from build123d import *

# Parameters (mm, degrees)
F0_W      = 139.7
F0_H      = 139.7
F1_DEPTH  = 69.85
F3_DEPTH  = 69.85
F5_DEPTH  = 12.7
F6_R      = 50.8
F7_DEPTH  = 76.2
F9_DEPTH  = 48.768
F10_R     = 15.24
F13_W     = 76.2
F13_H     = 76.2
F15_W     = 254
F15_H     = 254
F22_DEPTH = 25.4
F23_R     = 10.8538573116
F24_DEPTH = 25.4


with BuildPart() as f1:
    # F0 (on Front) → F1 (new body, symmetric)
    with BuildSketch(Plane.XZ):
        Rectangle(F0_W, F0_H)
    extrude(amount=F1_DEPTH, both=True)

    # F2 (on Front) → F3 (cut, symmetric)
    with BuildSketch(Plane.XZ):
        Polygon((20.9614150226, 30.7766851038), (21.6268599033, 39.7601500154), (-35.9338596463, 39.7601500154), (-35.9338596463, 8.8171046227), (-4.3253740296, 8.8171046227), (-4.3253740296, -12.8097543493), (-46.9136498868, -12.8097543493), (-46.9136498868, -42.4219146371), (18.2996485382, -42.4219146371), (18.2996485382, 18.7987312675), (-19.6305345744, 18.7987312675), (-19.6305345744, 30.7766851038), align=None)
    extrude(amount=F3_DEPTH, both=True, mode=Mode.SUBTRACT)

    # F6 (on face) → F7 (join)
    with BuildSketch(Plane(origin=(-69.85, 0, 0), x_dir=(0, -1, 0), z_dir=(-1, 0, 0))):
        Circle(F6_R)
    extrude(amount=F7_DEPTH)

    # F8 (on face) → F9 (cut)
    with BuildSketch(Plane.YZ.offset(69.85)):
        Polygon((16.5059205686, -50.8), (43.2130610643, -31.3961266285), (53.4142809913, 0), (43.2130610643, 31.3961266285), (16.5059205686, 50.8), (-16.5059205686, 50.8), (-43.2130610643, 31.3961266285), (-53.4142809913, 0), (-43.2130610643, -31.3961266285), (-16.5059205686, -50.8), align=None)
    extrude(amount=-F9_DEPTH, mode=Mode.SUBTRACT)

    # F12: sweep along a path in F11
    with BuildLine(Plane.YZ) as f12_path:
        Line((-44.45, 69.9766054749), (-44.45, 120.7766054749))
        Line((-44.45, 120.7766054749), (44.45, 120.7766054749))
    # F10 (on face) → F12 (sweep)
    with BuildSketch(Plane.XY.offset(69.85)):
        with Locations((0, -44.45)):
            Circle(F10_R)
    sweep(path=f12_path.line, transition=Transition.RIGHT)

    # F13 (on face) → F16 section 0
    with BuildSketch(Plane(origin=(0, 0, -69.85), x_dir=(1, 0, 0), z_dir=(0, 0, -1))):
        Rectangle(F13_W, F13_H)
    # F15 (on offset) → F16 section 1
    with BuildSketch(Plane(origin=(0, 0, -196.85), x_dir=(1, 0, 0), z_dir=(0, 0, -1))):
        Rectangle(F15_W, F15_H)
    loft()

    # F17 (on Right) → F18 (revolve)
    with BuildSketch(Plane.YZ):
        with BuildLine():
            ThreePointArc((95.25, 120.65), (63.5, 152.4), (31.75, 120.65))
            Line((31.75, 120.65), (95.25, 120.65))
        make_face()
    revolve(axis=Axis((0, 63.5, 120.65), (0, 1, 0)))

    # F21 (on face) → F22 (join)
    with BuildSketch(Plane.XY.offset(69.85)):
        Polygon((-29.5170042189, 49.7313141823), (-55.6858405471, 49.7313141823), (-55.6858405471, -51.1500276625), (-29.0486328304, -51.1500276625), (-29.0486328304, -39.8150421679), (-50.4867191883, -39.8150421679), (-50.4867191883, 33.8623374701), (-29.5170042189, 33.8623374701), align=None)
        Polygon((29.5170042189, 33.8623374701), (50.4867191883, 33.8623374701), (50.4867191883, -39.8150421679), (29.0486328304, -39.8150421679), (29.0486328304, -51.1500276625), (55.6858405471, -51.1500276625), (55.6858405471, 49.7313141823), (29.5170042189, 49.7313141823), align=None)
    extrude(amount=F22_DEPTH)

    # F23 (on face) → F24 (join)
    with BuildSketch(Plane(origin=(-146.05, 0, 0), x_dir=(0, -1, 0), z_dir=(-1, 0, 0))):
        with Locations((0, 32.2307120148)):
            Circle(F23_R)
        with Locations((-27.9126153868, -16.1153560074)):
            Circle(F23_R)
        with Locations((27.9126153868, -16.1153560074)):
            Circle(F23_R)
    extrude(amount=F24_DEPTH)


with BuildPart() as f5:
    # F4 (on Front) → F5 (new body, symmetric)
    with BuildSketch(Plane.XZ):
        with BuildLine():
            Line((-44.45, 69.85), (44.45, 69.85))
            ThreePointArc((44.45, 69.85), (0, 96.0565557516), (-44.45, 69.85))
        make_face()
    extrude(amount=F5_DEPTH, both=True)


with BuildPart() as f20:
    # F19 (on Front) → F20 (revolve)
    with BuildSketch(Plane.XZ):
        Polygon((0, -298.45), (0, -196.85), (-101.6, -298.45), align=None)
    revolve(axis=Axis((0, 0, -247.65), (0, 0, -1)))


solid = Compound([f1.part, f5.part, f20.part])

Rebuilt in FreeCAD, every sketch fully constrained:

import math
import FreeCAD as App
import Part
import Sketcher
Q = App.Units.Quantity


def add_polygon(sketch, points):
    """Adds a closed chain of lines whose ends are joined by coincident constraints."""
    first, n = sketch.GeometryCount, len(points)
    for a, b in zip(points, points[1:] + points[:1]):
        sketch.addGeometry(Part.LineSegment(App.Vector(*a, 0), App.Vector(*b, 0)), False)
    for i in range(n):
        sketch.addConstraint(Sketcher.Constraint("Coincident", first + i, 2, first + (i + 1) % n, 1))

doc = App.newDocument("Part")
body = doc.addObject("PartDesign::Body", "Body")

# Sketch on XZ plane
sketch1 = doc.addObject("Sketcher::SketchObject", "Sketch")
body.addObject(sketch1)
sketch1.AttachmentSupport = (doc.XZ_Plane, [""])
sketch1.MapMode = "FlatFace"
add_polygon(sketch1, [(-69.85, 69.85), (-69.85, -69.85), (69.85, -69.85), (69.85, 69.85)])  # lines 0-3
sketch1.addConstraint([
    Sketcher.Constraint("Vertical", 0),
    Sketcher.Constraint("Horizontal", 1),
    Sketcher.Constraint("Vertical", 2),
    Sketcher.Constraint("Horizontal", 3),
    Sketcher.Constraint("Symmetric", 0, 2, 2, 2, -1, 1),
    Sketcher.Constraint("Equal", 3, 0),
    Sketcher.Constraint("DistanceX", 1, 1, 1, 2, Q("5.5 in")),
])
pad1 = doc.addObject("PartDesign::Pad", "Pad")
body.addObject(pad1)
pad1.Profile = sketch1
pad1.Length = Q("5.5 in")
pad1.Midplane = True

# Sketch on XZ plane
sketch2 = doc.addObject("Sketcher::SketchObject", "Sketch001")
body.addObject(sketch2)
sketch2.AttachmentSupport = (doc.XZ_Plane, [""])
sketch2.MapMode = "FlatFace"
add_polygon(sketch2, [(20.961415, 30.776685), (21.62686, 39.76015), (-35.93386, 39.76015), (-35.93386, 8.817105), (-4.325374, 8.817105), (-4.325374, -12.809754), (-46.91365, -12.809754), (-46.91365, -42.421915), (18.299649, -42.421915), (18.299649, 18.798731), (-19.630535, 18.798731), (-19.630535, 30.776685)])  # lines 0-11
sketch2.addConstraint([
    Sketcher.Constraint("Horizontal", 1),
    Sketcher.Constraint("Vertical", 2),
    Sketcher.Constraint("Horizontal", 3),
    Sketcher.Constraint("Vertical", 4),
    Sketcher.Constraint("Horizontal", 5),
    Sketcher.Constraint("Vertical", 6),
    Sketcher.Constraint("Horizontal", 7),
    Sketcher.Constraint("Vertical", 8),
    Sketcher.Constraint("Horizontal", 9),
    Sketcher.Constraint("Vertical", 10),
    Sketcher.Constraint("Horizontal", 11),
    Sketcher.Constraint("DistanceX", 7, 1, 7, 2, 65.213298),
    Sketcher.Constraint("DistanceX", 1, 2, 1, 1, 57.56072),
    Sketcher.Constraint("DistanceX", 11, 1, 11, 2, 40.59195),
    Sketcher.Constraint("DistanceY", 4, 2, 4, 1, 21.626859),
    Sketcher.Constraint("DistanceY", 6, 2, 6, 1, 29.61216),
    Sketcher.Constraint("DistanceX", 3, 1, 3, 2, 31.608486),
    Sketcher.Constraint("DistanceX", 5, 2, 5, 1, 42.588276),
    Sketcher.Constraint("DistanceX", 9, 2, 9, 1, 37.930183),
    Sketcher.Constraint("DistanceY", 2, 2, 2, 1, 30.943045),
    Sketcher.Constraint("DistanceY", 8, 1, 8, 2, 61.220646),
    Sketcher.Constraint("DistanceY", 10, 1, 10, 2, 11.977954),
    Sketcher.Constraint("DistanceX", -1, 1, 0, 2, 21.62686),
    Sketcher.Constraint("DistanceY", -1, 1, 0, 2, 39.76015),
])
pocket1 = doc.addObject("PartDesign::Pocket", "Pocket")
body.addObject(pocket1)
pocket1.Profile = sketch2
pocket1.Length = Q("5.5 in")
pocket1.Midplane = True

# Sketch on YZ plane
sketch3 = doc.addObject("Sketcher::SketchObject", "Sketch002")
body.addObject(sketch3)
sketch3.AttachmentSupport = (doc.YZ_Plane, [""])
sketch3.MapMode = "FlatFace"
sketch3.AttachmentOffset = App.Placement(App.Vector(0, 0, -2.75 * 25.4), App.Rotation())
sketch3.addGeometry(Part.Circle(App.Vector(0, 0, 0), App.Vector(0, 0, 1), 50.8), False)
sketch3.addConstraint([
    Sketcher.Constraint("Coincident", 0, 3, -1, 1),
    Sketcher.Constraint("Diameter", 0, Q("4 in")),
])
pad2 = doc.addObject("PartDesign::Pad", "Pad001")
body.addObject(pad2)
pad2.Profile = sketch3
pad2.Length = Q("3 in")
pad2.Reversed = True

# Sketch on YZ plane
sketch4 = doc.addObject("Sketcher::SketchObject", "Sketch003")
body.addObject(sketch4)
sketch4.AttachmentSupport = (doc.YZ_Plane, [""])
sketch4.MapMode = "FlatFace"
sketch4.AttachmentOffset = App.Placement(App.Vector(0, 0, 2.75 * 25.4), App.Rotation())
add_polygon(sketch4, [(16.505921, -50.8), (43.213061, -31.396127), (53.414281, 0), (43.213061, 31.396127), (16.505921, 50.8), (-16.505921, 50.8), (-43.213061, 31.396127), (-53.414281, 0), (-43.213061, -31.396127), (-16.505921, -50.8)])  # lines 0-9
sketch4.addConstraint([
    Sketcher.Constraint("Horizontal", 4),
    Sketcher.Constraint("Horizontal", 9),
    Sketcher.Constraint("Symmetric", 0, 2, 5, 2, -1, 1),
    Sketcher.Constraint("Symmetric", 1, 2, 6, 2, -1, 1),
    Sketcher.Constraint("Symmetric", 2, 2, 7, 2, -1, 1),
    Sketcher.Constraint("Symmetric", 3, 2, 8, 2, -1, 1),
    Sketcher.Constraint("Symmetric", 2, 2, 5, 2, -2),
    Sketcher.Constraint("PointOnObject", 1, 2, -1),
    Sketcher.Constraint("Parallel", 0, 5),
    Sketcher.Constraint("Vertical", 4, 2, 8, 2),
    Sketcher.Constraint("Equal", 0, 1),
    Sketcher.Constraint("DistanceY", -1, 1, 3, 2, Q("2 in")),
    Sketcher.Constraint("Angle", 0, Q("36 deg")),
    Sketcher.Constraint("Angle", 1, Q("72 deg")),
    Sketcher.Constraint("DistanceX", 4, 2, 4, 1, 33.011841),
])
pocket2 = doc.addObject("PartDesign::Pocket", "Pocket001")
body.addObject(pocket2)
pocket2.Profile = sketch4
pocket2.Length = Q("1.92 in")

# Sketch on XY plane
sketch5 = doc.addObject("Sketcher::SketchObject", "Sketch004")
body.addObject(sketch5)
sketch5.AttachmentSupport = (doc.XY_Plane, [""])
sketch5.MapMode = "FlatFace"
sketch5.AttachmentOffset = App.Placement(App.Vector(0, 0, 2.75 * 25.4), App.Rotation())
sketch5.addGeometry(Part.Circle(App.Vector(0, -44.45, 0), App.Vector(0, 0, 1), 15.24), False)
sketch5.addConstraint([
    Sketcher.Constraint("PointOnObject", 0, 3, -2),
    Sketcher.Constraint("Diameter", 0, Q("1.2 in")),
    Sketcher.Constraint("DistanceY", 0, 3, -1, 1, Q("1.75 in")),
])

# Sketch on YZ plane
sketch6 = doc.addObject("Sketcher::SketchObject", "Sketch005")
body.addObject(sketch6)
sketch6.AttachmentSupport = (doc.YZ_Plane, [""])
sketch6.MapMode = "FlatFace"
sketch6.addGeometry([
    Part.LineSegment(App.Vector(-44.45, 69.976605, 0), App.Vector(-44.45, 120.776605, 0)),
    Part.LineSegment(App.Vector(-44.45, 120.776605, 0), App.Vector(44.45, 120.776605, 0)),
], False)
sketch6.addConstraint([
    Sketcher.Constraint("Coincident", 0, 2, 1, 1),
    Sketcher.Constraint("Vertical", 0),
    Sketcher.Constraint("Horizontal", 1),
    Sketcher.Constraint("DistanceY", 0, 1, 0, 2, Q("2 in")),
    Sketcher.Constraint("DistanceX", 1, 1, 1, 2, Q("3.5 in")),
    Sketcher.Constraint("DistanceX", 0, 1, -1, 1, Q("1.75 in")),
    Sketcher.Constraint("DistanceY", -1, 1, 0, 1, 69.976605),
])
doc.recompute()

additivepipe = doc.addObject("PartDesign::AdditivePipe", "AdditivePipe")
body.addObject(additivepipe)
additivepipe.Profile = sketch5
additivepipe.Spine = (sketch6, ["Edge1", "Edge2"])
additivepipe.Transition = "Right corner"

# Sketch on XY plane
sketch7 = doc.addObject("Sketcher::SketchObject", "Sketch006")
body.addObject(sketch7)
sketch7.AttachmentSupport = (doc.XY_Plane, [""])
sketch7.MapMode = "FlatFace"
sketch7.AttachmentOffset = App.Placement(App.Vector(0, 0, -2.75 * 25.4), App.Rotation())
add_polygon(sketch7, [(-38.1, -38.1), (-38.1, 38.1), (38.1, 38.1), (38.1, -38.1)])  # lines 0-3
sketch7.addConstraint([
    Sketcher.Constraint("Vertical", 0),
    Sketcher.Constraint("Horizontal", 1),
    Sketcher.Constraint("Vertical", 2),
    Sketcher.Constraint("Horizontal", 3),
    Sketcher.Constraint("Symmetric", 0, 2, 2, 2, -1, 1),
    Sketcher.Constraint("Equal", 3, 0),
    Sketcher.Constraint("DistanceX", 1, 1, 1, 2, Q("3 in")),
])

# Sketch on XY plane
sketch8 = doc.addObject("Sketcher::SketchObject", "Sketch007")
body.addObject(sketch8)
sketch8.AttachmentSupport = (doc.XY_Plane, [""])
sketch8.MapMode = "FlatFace"
sketch8.AttachmentOffset = App.Placement(App.Vector(0, 0, -7.75 * 25.4), App.Rotation())
add_polygon(sketch8, [(-127, -127), (-127, 127), (127, 127), (127, -127)])  # lines 0-3
sketch8.addConstraint([
    Sketcher.Constraint("Vertical", 0),
    Sketcher.Constraint("Horizontal", 1),
    Sketcher.Constraint("Vertical", 2),
    Sketcher.Constraint("Horizontal", 3),
    Sketcher.Constraint("Symmetric", 0, 2, 2, 2, -1, 1),
    Sketcher.Constraint("Equal", 3, 0),
    Sketcher.Constraint("DistanceX", 1, 1, 1, 2, Q("10 in")),
])

additiveloft = doc.addObject("PartDesign::AdditiveLoft", "AdditiveLoft")
body.addObject(additiveloft)
additiveloft.Profile = sketch7
additiveloft.Sections = [sketch8]

# Sketch on YZ plane
sketch9 = doc.addObject("Sketcher::SketchObject", "Sketch008")
body.addObject(sketch9)
sketch9.AttachmentSupport = (doc.YZ_Plane, [""])
sketch9.MapMode = "FlatFace"
sketch9.addGeometry([
    Part.ArcOfCircle(Part.Circle(App.Vector(63.5, 120.65, 0), App.Vector(0, 0, 1), 31.75), math.radians(0), math.radians(180)),
    Part.LineSegment(App.Vector(31.75, 120.65, 0), App.Vector(95.25, 120.65, 0)),
], False)
sketch9.addGeometry(Part.LineSegment(App.Vector(31.75, 120.65, 0), App.Vector(95.25, 120.65, 0)), True)  # axis
sketch9.addConstraint([
    Sketcher.Constraint("Coincident", 0, 1, 1, 2),
    Sketcher.Constraint("Coincident", 1, 1, 0, 2),
    Sketcher.Constraint("Horizontal", 1),
    Sketcher.Constraint("Horizontal", 2),
    Sketcher.Constraint("Coincident", 2, 1, 1, 1),
    Sketcher.Constraint("Equal", 1, 2),
    Sketcher.Constraint("Radius", 0, Q("1.25 in")),
    Sketcher.Constraint("DistanceX", -1, 1, 0, 3, Q("2.5 in")),
    Sketcher.Constraint("DistanceY", -1, 1, 0, 3, Q("4.75 in")),
    Sketcher.Constraint("DistanceY", -1, 1, 0, 1, Q("4.75 in")),
])
revolution = doc.addObject("PartDesign::Revolution", "Revolution")
body.addObject(revolution)
revolution.Profile = sketch9
revolution.ReferenceAxis = (sketch9, ["Axis0"])
revolution.Angle = 360

# Sketch on XY plane
sketch10 = doc.addObject("Sketcher::SketchObject", "Sketch009")
body.addObject(sketch10)
sketch10.AttachmentSupport = (doc.XY_Plane, [""])
sketch10.MapMode = "FlatFace"
sketch10.AttachmentOffset = App.Placement(App.Vector(0, 0, 2.75 * 25.4), App.Rotation())
add_polygon(sketch10, [(-29.517004, 49.731314), (-55.685841, 49.731314), (-55.685841, -51.150028), (-29.048633, -51.150028), (-29.048633, -39.815042), (-50.486719, -39.815042), (-50.486719, 33.862337), (-29.517004, 33.862337)])  # lines 0-7
add_polygon(sketch10, [(29.517004, 33.862337), (50.486719, 33.862337), (50.486719, -39.815042), (29.048633, -39.815042), (29.048633, -51.150028), (55.685841, -51.150028), (55.685841, 49.731314), (29.517004, 49.731314)])  # lines 8-15
sketch10.addConstraint([
    Sketcher.Constraint("Horizontal", 0),
    Sketcher.Constraint("Vertical", 1),
    Sketcher.Constraint("Horizontal", 2),
    Sketcher.Constraint("Vertical", 3),
    Sketcher.Constraint("Horizontal", 4),
    Sketcher.Constraint("Vertical", 5),
    Sketcher.Constraint("Horizontal", 6),
    Sketcher.Constraint("Vertical", 7),
    Sketcher.Constraint("Horizontal", 8),
    Sketcher.Constraint("Vertical", 9),
    Sketcher.Constraint("Horizontal", 10),
    Sketcher.Constraint("Vertical", 11),
    Sketcher.Constraint("Horizontal", 12),
    Sketcher.Constraint("Vertical", 13),
    Sketcher.Constraint("Horizontal", 14),
    Sketcher.Constraint("Vertical", 15),
    Sketcher.Constraint("Symmetric", 5, 2, 8, 2, -2),
    Sketcher.Constraint("Symmetric", 3, 2, 10, 2, -2),
    Sketcher.Constraint("Symmetric", 1, 2, 12, 2, -2),
    Sketcher.Constraint("Symmetric", 7, 2, 14, 2, -2),
    Sketcher.Constraint("DistanceY", 1, 2, 1, 1, 100.881342),
    Sketcher.Constraint("DistanceY", 5, 1, 5, 2, 73.67738),
    Sketcher.Constraint("DistanceX", 0, 2, 0, 1, 26.168836),
    Sketcher.Constraint("DistanceX", 2, 1, 2, 2, 26.637208),
    Sketcher.Constraint("DistanceX", 4, 2, 4, 1, 21.438086),
    Sketcher.Constraint("DistanceY", 3, 1, 3, 2, 11.334985),
    Sketcher.Constraint("DistanceX", 0, 2, -1, 1, 55.685841),
    Sketcher.Constraint("DistanceY", -1, 1, 0, 2, 49.731314),
])
pad3 = doc.addObject("PartDesign::Pad", "Pad002")
body.addObject(pad3)
pad3.Profile = sketch10
pad3.Length = Q("1 in")

# Sketch on YZ plane
sketch11 = doc.addObject("Sketcher::SketchObject", "Sketch010")
body.addObject(sketch11)
sketch11.AttachmentSupport = (doc.YZ_Plane, [""])
sketch11.MapMode = "FlatFace"
sketch11.AttachmentOffset = App.Placement(App.Vector(0, 0, -5.75 * 25.4), App.Rotation())
sketch11.addGeometry([
    Part.Circle(App.Vector(0, 32.230712, 0), App.Vector(0, 0, 1), 10.853857),
    Part.Circle(App.Vector(27.912615, -16.115356, 0), App.Vector(0, 0, 1), 10.853857),
    Part.Circle(App.Vector(-27.912615, -16.115356, 0), App.Vector(0, 0, 1), 10.853857),
], False)
sketch11.addConstraint([
    Sketcher.Constraint("Equal", 0, 1),
    Sketcher.Constraint("Equal", 1, 2),
    Sketcher.Constraint("Symmetric", 1, 3, 2, 3, -2),
    Sketcher.Constraint("PointOnObject", 0, 3, -2),
    Sketcher.Constraint("Diameter", 0, 21.707715),
    Sketcher.Constraint("DistanceY", 1, 3, 0, 3, 48.346068),
    Sketcher.Constraint("DistanceX", 2, 3, 1, 3, 55.825231),
    Sketcher.Constraint("DistanceY", -1, 1, 0, 3, 32.230712),
])
pad4 = doc.addObject("PartDesign::Pad", "Pad003")
body.addObject(pad4)
pad4.Profile = sketch11
pad4.Length = Q("1 in")
pad4.Reversed = True
body2 = doc.addObject("PartDesign::Body", "Body001")

# Sketch on XZ plane
sketch12 = doc.addObject("Sketcher::SketchObject", "Sketch011")
body2.addObject(sketch12)
sketch12.AttachmentSupport = (doc.getObject("XZ_Plane001"), [""])
sketch12.MapMode = "FlatFace"
sketch12.addGeometry([
    Part.LineSegment(App.Vector(-44.45, 69.85, 0), App.Vector(44.45, 69.85, 0)),
    Part.ArcOfCircle(Part.Circle(App.Vector(0, 45.256556, 0), App.Vector(0, 0, 1), 50.8), math.radians(28.955024), math.radians(151.044976)),
], False)
sketch12.addConstraint([
    Sketcher.Constraint("Coincident", 0, 1, 1, 2),
    Sketcher.Constraint("Coincident", 1, 1, 0, 2),
    Sketcher.Constraint("Horizontal", 0),
    Sketcher.Constraint("PointOnObject", 1, 3, -2),
    Sketcher.Constraint("Radius", 1, Q("2 in")),
    Sketcher.Constraint("DistanceX", 0, 1, 0, 2, Q("3.5 in")),
    Sketcher.Constraint("DistanceY", -1, 1, 0, 1, Q("2.75 in")),
])
pad5 = doc.addObject("PartDesign::Pad", "Pad004")
body2.addObject(pad5)
pad5.Profile = sketch12
pad5.Length = Q("1 in")
pad5.Midplane = True
body3 = doc.addObject("PartDesign::Body", "Body002")

# Sketch on XZ plane
sketch13 = doc.addObject("Sketcher::SketchObject", "Sketch012")
body3.addObject(sketch13)
sketch13.AttachmentSupport = (doc.getObject("XZ_Plane002"), [""])
sketch13.MapMode = "FlatFace"
add_polygon(sketch13, [(0, -298.45), (0, -196.85), (-101.6, -298.45)])  # lines 0-2
sketch13.addConstraint([
    Sketcher.Constraint("Vertical", 0),
    Sketcher.Constraint("Horizontal", 2),
    Sketcher.Constraint("PointOnObject", 0, 2, -2),
    Sketcher.Constraint("Equal", 2, 0),
    Sketcher.Constraint("DistanceX", 2, 1, 2, 2, Q("4 in")),
    Sketcher.Constraint("DistanceY", 0, 2, -1, 1, Q("7.75 in")),
])
revolution2 = doc.addObject("PartDesign::Revolution", "Revolution001")
body3.addObject(revolution2)
revolution2.Profile = sketch13
revolution2.ReferenceAxis = (sketch13, ["V_Axis"])
revolution2.Angle = 360

doc.recompute()
